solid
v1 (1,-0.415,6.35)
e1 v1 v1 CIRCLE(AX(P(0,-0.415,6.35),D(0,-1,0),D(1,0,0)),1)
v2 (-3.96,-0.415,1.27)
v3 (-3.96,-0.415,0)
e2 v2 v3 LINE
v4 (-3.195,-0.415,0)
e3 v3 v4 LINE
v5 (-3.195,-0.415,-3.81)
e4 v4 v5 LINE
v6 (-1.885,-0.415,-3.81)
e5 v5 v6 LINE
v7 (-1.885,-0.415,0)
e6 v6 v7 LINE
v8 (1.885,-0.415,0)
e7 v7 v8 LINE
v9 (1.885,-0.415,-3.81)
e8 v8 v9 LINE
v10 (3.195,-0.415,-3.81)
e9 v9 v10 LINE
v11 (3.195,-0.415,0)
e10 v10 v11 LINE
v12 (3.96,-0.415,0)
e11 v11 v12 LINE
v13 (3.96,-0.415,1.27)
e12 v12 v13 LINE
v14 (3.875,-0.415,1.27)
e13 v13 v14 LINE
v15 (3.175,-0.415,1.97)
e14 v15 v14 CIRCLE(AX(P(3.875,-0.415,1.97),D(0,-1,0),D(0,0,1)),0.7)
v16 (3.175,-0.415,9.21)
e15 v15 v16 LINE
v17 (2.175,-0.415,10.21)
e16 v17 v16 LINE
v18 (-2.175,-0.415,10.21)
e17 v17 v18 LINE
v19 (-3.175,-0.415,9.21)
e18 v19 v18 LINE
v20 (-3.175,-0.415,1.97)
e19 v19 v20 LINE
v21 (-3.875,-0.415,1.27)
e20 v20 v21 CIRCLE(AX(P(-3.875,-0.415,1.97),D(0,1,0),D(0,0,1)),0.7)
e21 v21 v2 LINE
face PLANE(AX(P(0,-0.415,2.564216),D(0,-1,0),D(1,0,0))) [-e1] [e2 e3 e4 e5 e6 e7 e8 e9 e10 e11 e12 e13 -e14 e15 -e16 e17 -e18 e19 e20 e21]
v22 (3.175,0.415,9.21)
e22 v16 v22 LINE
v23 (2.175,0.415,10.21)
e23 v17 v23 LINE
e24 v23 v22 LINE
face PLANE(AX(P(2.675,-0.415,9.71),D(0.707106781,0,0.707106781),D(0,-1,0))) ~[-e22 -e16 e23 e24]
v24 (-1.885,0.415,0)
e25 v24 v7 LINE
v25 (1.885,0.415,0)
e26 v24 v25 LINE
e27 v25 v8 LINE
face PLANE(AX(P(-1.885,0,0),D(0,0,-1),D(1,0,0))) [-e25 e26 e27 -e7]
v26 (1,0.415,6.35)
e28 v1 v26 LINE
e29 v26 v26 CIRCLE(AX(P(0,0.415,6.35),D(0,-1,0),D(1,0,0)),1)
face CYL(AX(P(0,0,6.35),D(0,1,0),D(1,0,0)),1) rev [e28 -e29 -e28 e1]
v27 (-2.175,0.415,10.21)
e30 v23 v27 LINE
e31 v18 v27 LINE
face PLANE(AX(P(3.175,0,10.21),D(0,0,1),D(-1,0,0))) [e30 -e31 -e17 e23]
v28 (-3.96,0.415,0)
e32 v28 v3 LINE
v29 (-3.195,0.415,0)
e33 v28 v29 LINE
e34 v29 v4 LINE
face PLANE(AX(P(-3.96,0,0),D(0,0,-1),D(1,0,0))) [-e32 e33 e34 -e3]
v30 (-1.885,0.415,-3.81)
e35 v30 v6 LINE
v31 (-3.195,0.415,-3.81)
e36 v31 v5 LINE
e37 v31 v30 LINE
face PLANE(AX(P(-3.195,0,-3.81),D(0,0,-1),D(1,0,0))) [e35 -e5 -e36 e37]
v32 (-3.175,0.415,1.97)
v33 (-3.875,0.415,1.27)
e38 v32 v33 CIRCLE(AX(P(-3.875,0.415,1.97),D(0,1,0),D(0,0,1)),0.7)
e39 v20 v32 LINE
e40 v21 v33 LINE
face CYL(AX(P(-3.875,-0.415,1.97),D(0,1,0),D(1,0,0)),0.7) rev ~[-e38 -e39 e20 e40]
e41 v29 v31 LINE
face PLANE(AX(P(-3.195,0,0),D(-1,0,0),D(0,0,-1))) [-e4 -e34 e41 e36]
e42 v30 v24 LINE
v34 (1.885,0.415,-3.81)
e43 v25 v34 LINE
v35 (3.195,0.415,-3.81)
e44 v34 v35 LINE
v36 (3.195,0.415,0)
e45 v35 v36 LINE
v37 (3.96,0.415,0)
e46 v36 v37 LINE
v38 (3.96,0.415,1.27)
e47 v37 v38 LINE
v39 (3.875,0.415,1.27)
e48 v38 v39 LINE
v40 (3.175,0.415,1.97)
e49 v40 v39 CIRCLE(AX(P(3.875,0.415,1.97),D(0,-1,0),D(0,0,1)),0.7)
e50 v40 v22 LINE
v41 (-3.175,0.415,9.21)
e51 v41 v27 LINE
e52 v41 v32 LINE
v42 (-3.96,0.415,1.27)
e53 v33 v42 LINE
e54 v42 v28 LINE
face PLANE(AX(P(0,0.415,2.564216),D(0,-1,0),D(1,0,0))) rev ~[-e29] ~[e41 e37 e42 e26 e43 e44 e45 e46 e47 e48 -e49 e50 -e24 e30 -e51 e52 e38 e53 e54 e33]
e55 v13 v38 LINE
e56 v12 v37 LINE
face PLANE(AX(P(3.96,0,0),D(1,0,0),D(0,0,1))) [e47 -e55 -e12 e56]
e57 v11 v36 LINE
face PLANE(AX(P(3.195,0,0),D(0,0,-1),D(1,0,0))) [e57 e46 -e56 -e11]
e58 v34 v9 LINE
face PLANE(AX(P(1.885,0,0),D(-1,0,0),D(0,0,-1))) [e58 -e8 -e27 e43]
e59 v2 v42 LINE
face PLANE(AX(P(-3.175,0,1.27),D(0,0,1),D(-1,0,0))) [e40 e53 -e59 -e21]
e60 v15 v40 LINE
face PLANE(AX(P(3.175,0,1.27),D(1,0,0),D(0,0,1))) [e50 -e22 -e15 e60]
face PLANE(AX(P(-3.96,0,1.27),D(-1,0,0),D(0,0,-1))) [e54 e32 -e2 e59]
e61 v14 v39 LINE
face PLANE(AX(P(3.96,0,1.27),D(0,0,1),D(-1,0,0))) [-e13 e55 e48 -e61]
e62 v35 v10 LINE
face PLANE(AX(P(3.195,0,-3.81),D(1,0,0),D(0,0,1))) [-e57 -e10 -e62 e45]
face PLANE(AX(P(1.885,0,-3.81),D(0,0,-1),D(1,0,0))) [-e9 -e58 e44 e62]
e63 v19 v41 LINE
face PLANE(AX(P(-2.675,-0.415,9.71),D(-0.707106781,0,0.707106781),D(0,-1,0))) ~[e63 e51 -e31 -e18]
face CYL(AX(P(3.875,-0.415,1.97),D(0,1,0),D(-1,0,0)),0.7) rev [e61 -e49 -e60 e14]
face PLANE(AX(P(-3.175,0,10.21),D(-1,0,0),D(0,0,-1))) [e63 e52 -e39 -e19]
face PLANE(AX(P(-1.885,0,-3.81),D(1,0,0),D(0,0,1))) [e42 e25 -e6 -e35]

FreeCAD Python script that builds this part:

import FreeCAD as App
import Part
import Sketcher
from FreeCAD import Vector
Q = App.Units.Quantity


def edges_at(feature, points):
    """Names of the edges that pass closest to the given points."""
    edges = feature.Shape.Edges
    near = lambda p: min(range(len(edges)), key=lambda i: edges[i].distToShape(Part.Vertex(*p))[0])
    return sorted({f"Edge{near(p) + 1}" for p in points})


def add_polygon(sketch, points):
    """Adds a closed chain of lines whose ends are joined by coincident constraints."""
    first, n = sketch.GeometryCount, len(points)
    for a, b in zip(points, points[1:] + points[:1]):
        sketch.addGeometry(Part.LineSegment(App.Vector(*a, 0), App.Vector(*b, 0)), False)
    for i in range(n):
        sketch.addConstraint(Sketcher.Constraint("Coincident", first + i, 2, first + (i + 1) % n, 1))

doc = App.newDocument("Part")
body = doc.addObject("PartDesign::Body", "Body")

# Sketch on XZ plane
sketch1 = doc.addObject("Sketcher::SketchObject", "Sketch")
body.addObject(sketch1)
sketch1.AttachmentSupport = (doc.XZ_Plane, [""])
sketch1.MapMode = "FlatFace"
add_polygon(sketch1, [(-4, 1.3), (-4, 0), (-3.2, 0), (-3.2, -3.8), (-1.9, -3.8), (-1.9, 0), (1.9, 0), (1.9, -3.8), (3.2, -3.8), (3.2, 0), (4, 0), (4, 1.3), (3.2, 1.3), (3.2, 10.2), (-3.2, 10.2), (-3.2, 1.3)])  # lines 0-15
sketch1.addGeometry(Part.Circle(Vector(0, 6.3, 0), Vector(0, 0, 1), 1), False)  # 16
sketch1.addConstraint(Sketcher.Constraint("Vertical", 0))
sketch1.addConstraint(Sketcher.Constraint("Horizontal", 1))
sketch1.addConstraint(Sketcher.Constraint("Vertical", 2))
sketch1.addConstraint(Sketcher.Constraint("Horizontal", 3))
sketch1.addConstraint(Sketcher.Constraint("Vertical", 4))
sketch1.addConstraint(Sketcher.Constraint("Horizontal", 5))
sketch1.addConstraint(Sketcher.Constraint("Vertical", 6))
sketch1.addConstraint(Sketcher.Constraint("Horizontal", 7))
sketch1.addConstraint(Sketcher.Constraint("Vertical", 8))
sketch1.addConstraint(Sketcher.Constraint("Horizontal", 9))
sketch1.addConstraint(Sketcher.Constraint("Vertical", 10))
sketch1.addConstraint(Sketcher.Constraint("Horizontal", 11))
sketch1.addConstraint(Sketcher.Constraint("Vertical", 12))
sketch1.addConstraint(Sketcher.Constraint("Horizontal", 13))
sketch1.addConstraint(Sketcher.Constraint("Vertical", 14))
sketch1.addConstraint(Sketcher.Constraint("Horizontal", 15))
sketch1.addConstraint(Sketcher.Constraint("Symmetric", 4, 2, 5, 2, -1, 1))
sketch1.addConstraint(Sketcher.Constraint("Symmetric", 1, 2, 8, 2, -1, 1))
sketch1.addConstraint(Sketcher.Constraint("Symmetric", 0, 2, 9, 2, -2))
sketch1.addConstraint(Sketcher.Constraint("Symmetric", 11, 2, 14, 2, -2))
sketch1.addConstraint(Sketcher.Constraint("PointOnObject", 16, 3, -2))
sketch1.addConstraint(Sketcher.Constraint("Horizontal", 3, 2, 6, 2))
sketch1.addConstraint(Sketcher.Constraint("Diameter", 16, Q("2 mm")))
sketch1.addConstraint(Sketcher.Constraint("DistanceX", 3, 1, 3, 2, Q("1.31 mm")))
sketch1.addConstraint(Sketcher.Constraint("DistanceX", 5, 1, 5, 2, Q("3.77 mm")))
sketch1.addConstraint(Sketcher.Constraint("DistanceX", 13, 2, 13, 1, Q("6.35 mm")))
sketch1.addConstraint(Sketcher.Constraint("DistanceY", 0, 2, 0, 1, Q("1.27 mm")))
sketch1.addConstraint(Sketcher.Constraint("DistanceY", 2, 2, 2, 1, Q("3.81 mm")))
sketch1.addConstraint(Sketcher.Constraint("DistanceY", 12, 1, 12, 2, Q("8.94 mm")))
sketch1.addConstraint(Sketcher.Constraint("DistanceX", 1, 1, 1, 2, Q("0.765 mm")))
sketch1.addConstraint(Sketcher.Constraint("DistanceY", -1, 1, 16, 3, Q("6.35 mm")))
pad1 = doc.addObject("PartDesign::Pad", "Pad")
body.addObject(pad1)
pad1.Profile = sketch1
pad1.Length = 0.83
pad1.Midplane = True
doc.recompute()

chamfer = doc.addObject("PartDesign::Chamfer", "Chamfer")
body.addObject(chamfer)
chamfer.Base = (pad1, edges_at(pad1, [(3.175, 0, 10.21), (-3.175, 0, 10.21)]))
chamfer.Size = 1
doc.recompute()

fillet = doc.addObject("PartDesign::Fillet", "Fillet")
body.addObject(fillet)
fillet.Base = (chamfer, edges_at(chamfer, [(3.175, 0, 1.27), (-3.175, 0, 1.27)]))
fillet.Radius = 0.7

doc.recompute()
